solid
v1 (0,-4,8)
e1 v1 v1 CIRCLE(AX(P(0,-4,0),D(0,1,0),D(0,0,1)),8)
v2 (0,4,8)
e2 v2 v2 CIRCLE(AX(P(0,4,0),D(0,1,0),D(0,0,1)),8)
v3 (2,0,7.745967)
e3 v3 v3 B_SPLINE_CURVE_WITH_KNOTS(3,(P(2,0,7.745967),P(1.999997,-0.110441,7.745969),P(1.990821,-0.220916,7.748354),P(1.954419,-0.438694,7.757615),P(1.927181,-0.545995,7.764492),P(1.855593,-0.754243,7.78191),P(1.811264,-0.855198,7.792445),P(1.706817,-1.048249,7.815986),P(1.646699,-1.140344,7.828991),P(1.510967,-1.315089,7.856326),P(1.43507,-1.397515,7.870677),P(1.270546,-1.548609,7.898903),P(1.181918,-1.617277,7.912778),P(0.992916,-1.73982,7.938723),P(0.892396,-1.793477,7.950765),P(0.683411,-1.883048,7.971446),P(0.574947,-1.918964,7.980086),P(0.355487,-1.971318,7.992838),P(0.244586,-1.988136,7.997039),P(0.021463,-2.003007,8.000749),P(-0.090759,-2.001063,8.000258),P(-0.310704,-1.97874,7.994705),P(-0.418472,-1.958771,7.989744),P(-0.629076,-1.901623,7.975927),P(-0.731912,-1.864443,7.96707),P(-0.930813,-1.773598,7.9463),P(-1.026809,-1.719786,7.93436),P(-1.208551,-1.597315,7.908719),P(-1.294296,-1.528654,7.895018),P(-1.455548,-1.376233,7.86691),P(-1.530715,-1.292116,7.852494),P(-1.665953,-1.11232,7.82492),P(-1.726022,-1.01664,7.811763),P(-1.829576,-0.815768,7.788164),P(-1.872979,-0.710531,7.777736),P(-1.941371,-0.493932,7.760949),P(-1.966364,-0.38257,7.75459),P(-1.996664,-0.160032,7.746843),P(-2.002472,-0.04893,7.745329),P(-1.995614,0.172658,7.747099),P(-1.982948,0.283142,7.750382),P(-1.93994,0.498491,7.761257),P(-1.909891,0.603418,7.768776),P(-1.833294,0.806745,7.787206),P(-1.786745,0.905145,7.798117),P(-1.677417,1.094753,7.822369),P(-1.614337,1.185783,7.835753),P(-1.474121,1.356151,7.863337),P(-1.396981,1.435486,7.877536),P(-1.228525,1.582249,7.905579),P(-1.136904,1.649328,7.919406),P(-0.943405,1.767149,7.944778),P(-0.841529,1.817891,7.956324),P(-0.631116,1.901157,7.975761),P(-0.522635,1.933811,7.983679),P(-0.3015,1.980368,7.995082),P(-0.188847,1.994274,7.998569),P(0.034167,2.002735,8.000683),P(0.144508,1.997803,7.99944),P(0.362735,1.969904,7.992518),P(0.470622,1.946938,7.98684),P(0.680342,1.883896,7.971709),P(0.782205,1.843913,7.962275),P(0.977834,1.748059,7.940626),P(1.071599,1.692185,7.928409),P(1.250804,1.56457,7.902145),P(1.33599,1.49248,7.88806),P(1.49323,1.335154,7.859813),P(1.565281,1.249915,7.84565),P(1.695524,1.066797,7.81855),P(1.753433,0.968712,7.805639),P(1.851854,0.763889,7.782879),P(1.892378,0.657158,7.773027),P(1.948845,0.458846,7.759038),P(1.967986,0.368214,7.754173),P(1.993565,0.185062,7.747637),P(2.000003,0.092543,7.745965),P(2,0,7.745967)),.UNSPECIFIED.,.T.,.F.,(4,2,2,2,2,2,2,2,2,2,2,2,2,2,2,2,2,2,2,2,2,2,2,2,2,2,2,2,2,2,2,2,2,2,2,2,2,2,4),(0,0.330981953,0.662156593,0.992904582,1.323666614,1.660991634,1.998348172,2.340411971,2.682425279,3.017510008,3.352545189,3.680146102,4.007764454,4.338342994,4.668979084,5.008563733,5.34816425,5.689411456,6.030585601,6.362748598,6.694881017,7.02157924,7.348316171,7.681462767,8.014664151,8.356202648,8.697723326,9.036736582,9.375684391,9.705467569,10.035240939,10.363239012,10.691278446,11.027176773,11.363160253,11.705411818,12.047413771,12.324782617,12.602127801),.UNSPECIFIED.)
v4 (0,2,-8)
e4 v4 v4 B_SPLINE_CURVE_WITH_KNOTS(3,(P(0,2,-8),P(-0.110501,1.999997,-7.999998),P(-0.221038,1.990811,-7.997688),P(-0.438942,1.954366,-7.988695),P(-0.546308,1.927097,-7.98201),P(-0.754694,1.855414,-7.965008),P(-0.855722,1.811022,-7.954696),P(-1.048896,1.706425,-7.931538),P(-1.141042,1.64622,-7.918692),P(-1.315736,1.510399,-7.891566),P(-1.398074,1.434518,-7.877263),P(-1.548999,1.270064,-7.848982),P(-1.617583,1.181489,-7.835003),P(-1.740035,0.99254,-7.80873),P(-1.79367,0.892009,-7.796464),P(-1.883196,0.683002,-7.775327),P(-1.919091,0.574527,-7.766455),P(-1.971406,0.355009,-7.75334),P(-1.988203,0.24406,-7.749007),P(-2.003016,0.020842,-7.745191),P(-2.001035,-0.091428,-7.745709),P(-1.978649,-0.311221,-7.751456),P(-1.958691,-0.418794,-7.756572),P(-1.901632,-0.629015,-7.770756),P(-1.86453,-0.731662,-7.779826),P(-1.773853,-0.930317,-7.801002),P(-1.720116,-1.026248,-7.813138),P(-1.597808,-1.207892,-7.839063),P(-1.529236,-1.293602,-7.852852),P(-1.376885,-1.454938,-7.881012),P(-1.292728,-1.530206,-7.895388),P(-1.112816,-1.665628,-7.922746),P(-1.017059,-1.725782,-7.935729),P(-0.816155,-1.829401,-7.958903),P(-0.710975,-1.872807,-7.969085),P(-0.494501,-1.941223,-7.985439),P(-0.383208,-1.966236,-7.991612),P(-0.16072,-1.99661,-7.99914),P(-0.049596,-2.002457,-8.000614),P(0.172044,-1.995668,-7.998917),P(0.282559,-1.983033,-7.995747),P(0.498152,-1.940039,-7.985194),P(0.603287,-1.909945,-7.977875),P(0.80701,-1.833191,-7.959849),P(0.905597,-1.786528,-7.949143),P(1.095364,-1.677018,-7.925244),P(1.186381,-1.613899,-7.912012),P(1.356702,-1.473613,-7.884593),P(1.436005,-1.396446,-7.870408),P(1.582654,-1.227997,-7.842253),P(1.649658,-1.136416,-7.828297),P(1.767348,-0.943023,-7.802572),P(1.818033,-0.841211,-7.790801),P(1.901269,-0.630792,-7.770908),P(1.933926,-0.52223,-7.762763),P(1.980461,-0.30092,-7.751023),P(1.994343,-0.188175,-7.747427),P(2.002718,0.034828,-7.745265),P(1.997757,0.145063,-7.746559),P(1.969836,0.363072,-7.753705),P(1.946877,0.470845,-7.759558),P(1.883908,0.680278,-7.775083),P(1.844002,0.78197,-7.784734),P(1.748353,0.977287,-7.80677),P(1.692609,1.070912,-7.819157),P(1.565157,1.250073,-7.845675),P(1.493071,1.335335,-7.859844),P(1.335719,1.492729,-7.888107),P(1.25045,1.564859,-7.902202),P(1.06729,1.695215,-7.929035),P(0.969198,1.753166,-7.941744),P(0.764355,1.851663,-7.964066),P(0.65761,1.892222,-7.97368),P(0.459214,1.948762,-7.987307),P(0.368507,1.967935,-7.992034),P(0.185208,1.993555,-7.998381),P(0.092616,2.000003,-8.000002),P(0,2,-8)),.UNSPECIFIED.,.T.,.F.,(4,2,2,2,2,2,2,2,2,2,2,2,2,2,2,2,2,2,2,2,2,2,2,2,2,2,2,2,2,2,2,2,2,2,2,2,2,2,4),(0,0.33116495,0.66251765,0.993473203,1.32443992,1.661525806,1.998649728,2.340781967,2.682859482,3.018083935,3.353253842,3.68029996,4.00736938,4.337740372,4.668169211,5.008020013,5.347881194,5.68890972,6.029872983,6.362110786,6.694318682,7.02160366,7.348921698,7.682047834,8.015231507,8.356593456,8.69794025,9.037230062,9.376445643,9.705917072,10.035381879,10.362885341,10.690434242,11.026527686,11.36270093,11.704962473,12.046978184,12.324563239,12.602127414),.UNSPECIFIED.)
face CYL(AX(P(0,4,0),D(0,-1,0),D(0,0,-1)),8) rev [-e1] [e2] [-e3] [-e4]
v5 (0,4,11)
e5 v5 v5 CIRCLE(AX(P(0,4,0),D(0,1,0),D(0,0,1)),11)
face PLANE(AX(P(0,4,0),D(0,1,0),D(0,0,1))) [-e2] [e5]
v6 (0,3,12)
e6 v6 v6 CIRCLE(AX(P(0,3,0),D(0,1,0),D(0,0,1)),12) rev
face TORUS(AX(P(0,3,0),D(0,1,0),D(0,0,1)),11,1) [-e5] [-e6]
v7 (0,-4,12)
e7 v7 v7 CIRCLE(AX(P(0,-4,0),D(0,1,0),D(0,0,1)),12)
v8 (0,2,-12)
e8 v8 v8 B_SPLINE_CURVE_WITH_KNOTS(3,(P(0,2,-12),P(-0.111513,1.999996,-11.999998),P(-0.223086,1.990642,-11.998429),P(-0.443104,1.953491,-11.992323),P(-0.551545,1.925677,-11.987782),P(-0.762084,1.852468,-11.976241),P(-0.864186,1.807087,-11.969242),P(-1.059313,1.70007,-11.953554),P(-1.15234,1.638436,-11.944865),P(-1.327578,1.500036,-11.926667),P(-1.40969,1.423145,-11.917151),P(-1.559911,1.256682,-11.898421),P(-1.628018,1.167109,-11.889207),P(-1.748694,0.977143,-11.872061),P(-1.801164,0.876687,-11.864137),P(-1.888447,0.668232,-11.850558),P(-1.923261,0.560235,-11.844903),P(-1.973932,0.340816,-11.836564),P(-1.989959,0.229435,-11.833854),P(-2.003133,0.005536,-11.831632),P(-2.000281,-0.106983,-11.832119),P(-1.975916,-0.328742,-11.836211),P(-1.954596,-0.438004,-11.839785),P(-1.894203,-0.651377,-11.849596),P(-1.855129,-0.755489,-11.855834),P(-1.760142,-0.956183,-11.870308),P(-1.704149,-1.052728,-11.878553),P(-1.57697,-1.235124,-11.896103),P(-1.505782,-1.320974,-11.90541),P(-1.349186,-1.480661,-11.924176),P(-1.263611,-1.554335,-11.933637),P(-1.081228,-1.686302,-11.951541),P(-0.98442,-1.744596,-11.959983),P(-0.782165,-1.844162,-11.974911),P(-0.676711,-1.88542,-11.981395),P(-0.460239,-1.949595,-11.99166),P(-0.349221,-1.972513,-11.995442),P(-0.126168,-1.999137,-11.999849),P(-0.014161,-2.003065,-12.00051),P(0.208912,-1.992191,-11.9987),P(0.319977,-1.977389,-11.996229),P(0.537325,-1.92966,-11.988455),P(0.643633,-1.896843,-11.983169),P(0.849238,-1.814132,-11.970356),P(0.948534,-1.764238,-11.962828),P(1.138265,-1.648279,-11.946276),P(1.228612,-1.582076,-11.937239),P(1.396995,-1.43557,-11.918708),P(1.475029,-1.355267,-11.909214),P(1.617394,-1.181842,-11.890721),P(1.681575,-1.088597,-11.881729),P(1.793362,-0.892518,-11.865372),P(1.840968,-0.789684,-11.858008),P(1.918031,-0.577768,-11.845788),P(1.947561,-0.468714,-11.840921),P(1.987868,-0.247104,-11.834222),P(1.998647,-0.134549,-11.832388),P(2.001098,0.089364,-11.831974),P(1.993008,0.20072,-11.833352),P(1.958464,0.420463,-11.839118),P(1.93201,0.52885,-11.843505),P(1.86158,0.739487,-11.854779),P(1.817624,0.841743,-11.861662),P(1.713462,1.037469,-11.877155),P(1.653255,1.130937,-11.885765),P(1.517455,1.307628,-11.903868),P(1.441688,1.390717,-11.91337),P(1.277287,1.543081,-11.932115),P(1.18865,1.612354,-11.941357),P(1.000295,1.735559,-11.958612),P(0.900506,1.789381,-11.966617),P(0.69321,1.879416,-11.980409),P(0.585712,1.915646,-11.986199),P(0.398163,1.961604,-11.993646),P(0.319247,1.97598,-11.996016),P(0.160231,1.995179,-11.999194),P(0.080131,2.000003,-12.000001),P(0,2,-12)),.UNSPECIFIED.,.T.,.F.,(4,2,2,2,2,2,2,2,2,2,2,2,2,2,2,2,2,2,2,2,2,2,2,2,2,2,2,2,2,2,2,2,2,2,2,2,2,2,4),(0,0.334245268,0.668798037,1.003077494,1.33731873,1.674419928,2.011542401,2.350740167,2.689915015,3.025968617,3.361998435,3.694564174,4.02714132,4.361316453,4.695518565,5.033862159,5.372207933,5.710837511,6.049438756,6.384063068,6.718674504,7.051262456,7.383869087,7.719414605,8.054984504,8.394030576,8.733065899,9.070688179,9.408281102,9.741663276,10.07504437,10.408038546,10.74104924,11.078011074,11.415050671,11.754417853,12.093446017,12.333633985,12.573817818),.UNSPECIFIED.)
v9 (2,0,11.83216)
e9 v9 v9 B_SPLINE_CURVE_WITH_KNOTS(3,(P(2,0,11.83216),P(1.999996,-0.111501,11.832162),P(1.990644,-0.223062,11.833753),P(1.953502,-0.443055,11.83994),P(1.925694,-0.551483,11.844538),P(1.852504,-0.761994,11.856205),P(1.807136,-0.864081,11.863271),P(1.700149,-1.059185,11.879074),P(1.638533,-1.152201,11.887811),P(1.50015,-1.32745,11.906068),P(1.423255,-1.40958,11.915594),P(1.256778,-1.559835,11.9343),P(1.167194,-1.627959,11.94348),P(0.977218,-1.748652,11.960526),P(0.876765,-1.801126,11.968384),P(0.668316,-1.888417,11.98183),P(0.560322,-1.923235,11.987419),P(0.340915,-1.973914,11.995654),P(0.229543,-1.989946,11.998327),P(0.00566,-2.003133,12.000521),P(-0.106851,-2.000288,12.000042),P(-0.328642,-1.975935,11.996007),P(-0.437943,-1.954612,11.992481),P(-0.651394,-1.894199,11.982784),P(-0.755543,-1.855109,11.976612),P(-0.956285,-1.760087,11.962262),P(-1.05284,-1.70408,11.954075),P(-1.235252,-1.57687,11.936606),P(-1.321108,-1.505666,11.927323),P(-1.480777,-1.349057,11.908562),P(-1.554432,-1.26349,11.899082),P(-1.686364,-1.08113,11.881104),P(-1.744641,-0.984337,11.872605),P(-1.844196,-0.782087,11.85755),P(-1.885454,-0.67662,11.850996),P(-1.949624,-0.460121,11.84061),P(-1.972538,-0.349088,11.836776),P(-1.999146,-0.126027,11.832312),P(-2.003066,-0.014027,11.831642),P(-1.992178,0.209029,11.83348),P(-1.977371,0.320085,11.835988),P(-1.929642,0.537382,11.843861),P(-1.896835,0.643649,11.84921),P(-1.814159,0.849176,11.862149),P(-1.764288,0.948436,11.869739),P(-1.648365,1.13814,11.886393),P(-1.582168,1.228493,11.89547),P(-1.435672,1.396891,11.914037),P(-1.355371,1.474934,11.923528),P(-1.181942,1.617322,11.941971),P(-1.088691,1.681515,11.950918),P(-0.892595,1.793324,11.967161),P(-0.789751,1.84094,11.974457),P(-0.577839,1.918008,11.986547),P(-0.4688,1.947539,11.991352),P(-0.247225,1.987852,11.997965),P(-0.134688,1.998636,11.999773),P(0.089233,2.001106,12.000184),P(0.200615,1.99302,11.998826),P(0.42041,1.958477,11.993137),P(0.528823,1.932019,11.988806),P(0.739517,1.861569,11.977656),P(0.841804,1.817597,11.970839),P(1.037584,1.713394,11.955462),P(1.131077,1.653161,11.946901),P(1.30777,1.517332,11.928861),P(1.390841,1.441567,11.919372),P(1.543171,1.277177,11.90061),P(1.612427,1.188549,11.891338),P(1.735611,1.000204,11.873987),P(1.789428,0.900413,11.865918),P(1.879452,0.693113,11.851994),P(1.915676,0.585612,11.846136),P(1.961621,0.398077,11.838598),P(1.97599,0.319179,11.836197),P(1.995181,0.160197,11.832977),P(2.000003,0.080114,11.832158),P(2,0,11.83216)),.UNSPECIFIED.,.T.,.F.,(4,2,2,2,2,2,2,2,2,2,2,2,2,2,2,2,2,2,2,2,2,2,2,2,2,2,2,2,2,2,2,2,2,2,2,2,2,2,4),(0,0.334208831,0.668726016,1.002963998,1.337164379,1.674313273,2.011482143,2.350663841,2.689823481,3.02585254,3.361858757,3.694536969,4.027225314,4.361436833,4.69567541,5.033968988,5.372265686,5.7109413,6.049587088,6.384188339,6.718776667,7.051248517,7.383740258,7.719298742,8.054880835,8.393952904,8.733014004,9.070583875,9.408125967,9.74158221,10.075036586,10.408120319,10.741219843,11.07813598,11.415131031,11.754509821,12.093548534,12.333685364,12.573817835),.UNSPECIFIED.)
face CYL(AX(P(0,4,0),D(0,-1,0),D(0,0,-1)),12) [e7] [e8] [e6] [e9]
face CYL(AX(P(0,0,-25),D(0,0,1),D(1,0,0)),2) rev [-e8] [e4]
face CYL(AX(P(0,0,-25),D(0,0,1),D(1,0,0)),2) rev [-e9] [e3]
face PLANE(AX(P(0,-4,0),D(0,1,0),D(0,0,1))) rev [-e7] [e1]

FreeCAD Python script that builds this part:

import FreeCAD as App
import Part
import Sketcher
from FreeCAD import Vector


def edges_at(feature, points):
    """Names of the edges that pass closest to the given points."""
    edges = feature.Shape.Edges
    near = lambda p: min(range(len(edges)), key=lambda i: edges[i].distToShape(Part.Vertex(*p))[0])
    return sorted({f"Edge{near(p) + 1}" for p in points})

doc = App.newDocument("Part")
body = doc.addObject("PartDesign::Body", "Body")

# Sketch on XZ plane
sketch1 = body.newObject("Sketcher::SketchObject", "Sketch")
sketch1.AttachmentSupport = (doc.getObject("XZ_Plane"), [""])
sketch1.MapMode = "FlatFace"
sketch1.addGeometry([
    Part.Circle(Vector(0, 0, 0), Vector(0, 0, 1), 12),
    Part.Circle(Vector(0, 0, 0), Vector(0, 0, 1), 8),
], False)
sketch1.addConstraint([
    Sketcher.Constraint("Coincident", 0, 3, -1, 1),
    Sketcher.Constraint("Coincident", 1, 3, -1, 1),
    Sketcher.Constraint("Diameter", 0, 24.0),
    Sketcher.Constraint("Diameter", 1, 16.0),
])
pad1 = body.newObject("PartDesign::Pad", "Pad")
pad1.Profile = sketch1
pad1.Length = 8
pad1.Midplane = True
doc.recompute()

fillet = body.newObject("PartDesign::Fillet", "Fillet")
fillet.Base = (pad1, edges_at(pad1, [(-12, 4, 0)]))
fillet.Radius = 1

# Sketch on XY plane
sketch2 = body.newObject("Sketcher::SketchObject", "Sketch001")
sketch2.AttachmentSupport = (doc.getObject("XY_Plane"), [""])
sketch2.MapMode = "FlatFace"
sketch2.addGeometry(Part.Circle(Vector(0, 0, 0), Vector(0, 0, 1), 2), False)
sketch2.addConstraint([
    Sketcher.Constraint("Coincident", 0, 3, -1, 1),
    Sketcher.Constraint("Diameter", 0, 4.0),
])
pocket1 = body.newObject("PartDesign::Pocket", "Pocket")
pocket1.Profile = sketch2
pocket1.Length = 50
pocket1.Midplane = True

doc.recompute()
